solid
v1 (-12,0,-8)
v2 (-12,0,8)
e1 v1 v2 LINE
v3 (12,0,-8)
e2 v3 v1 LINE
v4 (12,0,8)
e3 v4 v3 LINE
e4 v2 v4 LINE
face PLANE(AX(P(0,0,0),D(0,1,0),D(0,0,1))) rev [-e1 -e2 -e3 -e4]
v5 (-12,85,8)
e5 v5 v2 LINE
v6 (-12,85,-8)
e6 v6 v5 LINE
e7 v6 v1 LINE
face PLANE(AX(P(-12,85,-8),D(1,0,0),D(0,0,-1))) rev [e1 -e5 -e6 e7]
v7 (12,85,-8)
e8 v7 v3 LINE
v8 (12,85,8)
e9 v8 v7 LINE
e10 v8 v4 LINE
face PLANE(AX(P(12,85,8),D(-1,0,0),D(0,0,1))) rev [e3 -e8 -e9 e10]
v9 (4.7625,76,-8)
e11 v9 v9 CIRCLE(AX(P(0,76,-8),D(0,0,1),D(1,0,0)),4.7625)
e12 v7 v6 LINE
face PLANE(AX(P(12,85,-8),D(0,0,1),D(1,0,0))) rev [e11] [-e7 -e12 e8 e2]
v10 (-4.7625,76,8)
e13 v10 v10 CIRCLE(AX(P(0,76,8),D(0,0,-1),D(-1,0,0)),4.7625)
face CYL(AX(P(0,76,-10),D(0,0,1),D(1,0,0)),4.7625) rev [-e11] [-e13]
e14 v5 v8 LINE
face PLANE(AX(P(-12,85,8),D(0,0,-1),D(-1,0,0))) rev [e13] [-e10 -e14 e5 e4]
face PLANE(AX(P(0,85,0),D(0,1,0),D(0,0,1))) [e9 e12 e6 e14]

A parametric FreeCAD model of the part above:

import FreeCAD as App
import Part
import Sketcher

V = App.Vector
Q = App.Units.Quantity


def add_polygon(sketch, points):
    """Adds a closed chain of lines whose ends are joined by coincident constraints."""
    first, n = sketch.GeometryCount, len(points)
    for a, b in zip(points, points[1:] + points[:1]):
        sketch.addGeometry(Part.LineSegment(App.Vector(*a, 0), App.Vector(*b, 0)), False)
    for i in range(n):
        sketch.addConstraint(Sketcher.Constraint("Coincident", first + i, 2, first + (i + 1) % n, 1))

doc = App.newDocument("Part")
body = doc.addObject("PartDesign::Body", "Body")

# Sketch on XZ plane
sketch1 = body.newObject("Sketcher::SketchObject", "Sketch")
sketch1.AttachmentSupport = (doc.getObject("XZ_Plane"), [""])
sketch1.MapMode = "FlatFace"
add_polygon(sketch1, [(-12, -8), (-12, 8), (12, 8), (12, -8)])  # lines 0-3
sketch1.addConstraint([
    Sketcher.Constraint("Vertical", 0),
    Sketcher.Constraint("Horizontal", 1),
    Sketcher.Constraint("Vertical", 2),
    Sketcher.Constraint("Horizontal", 3),
    Sketcher.Constraint("Symmetric", 0, 2, 2, 2, -1, 1),
    Sketcher.Constraint("DistanceX", 1, 1, 1, 2, Q("24 mm")),
    Sketcher.Constraint("DistanceY", 0, 1, 0, 2, Q("16 mm")),
])
pad1 = body.newObject("PartDesign::Pad", "Pad")
pad1.Profile = sketch1
pad1.Length = 85
pad1.Reversed = True

# Sketch on XY plane
sketch2 = body.newObject("Sketcher::SketchObject", "Sketch001")
sketch2.AttachmentSupport = (doc.getObject("XY_Plane"), [""])
sketch2.MapMode = "FlatFace"
sketch2.addGeometry(Part.Circle(V(0, 76, 0), V(0, 0, 1), 4.7625), False)
sketch2.addConstraint([
    Sketcher.Constraint("PointOnObject", 0, 3, -2),
    Sketcher.Constraint("Diameter", 0, Q("9.525 mm")),
    Sketcher.Constraint("DistanceY", -1, 1, 0, 3, Q("76 mm")),
])
pocket1 = body.newObject("PartDesign::Pocket", "Pocket")
pocket1.Profile = sketch2
pocket1.Length = 20
pocket1.Midplane = True

doc.recompute()
